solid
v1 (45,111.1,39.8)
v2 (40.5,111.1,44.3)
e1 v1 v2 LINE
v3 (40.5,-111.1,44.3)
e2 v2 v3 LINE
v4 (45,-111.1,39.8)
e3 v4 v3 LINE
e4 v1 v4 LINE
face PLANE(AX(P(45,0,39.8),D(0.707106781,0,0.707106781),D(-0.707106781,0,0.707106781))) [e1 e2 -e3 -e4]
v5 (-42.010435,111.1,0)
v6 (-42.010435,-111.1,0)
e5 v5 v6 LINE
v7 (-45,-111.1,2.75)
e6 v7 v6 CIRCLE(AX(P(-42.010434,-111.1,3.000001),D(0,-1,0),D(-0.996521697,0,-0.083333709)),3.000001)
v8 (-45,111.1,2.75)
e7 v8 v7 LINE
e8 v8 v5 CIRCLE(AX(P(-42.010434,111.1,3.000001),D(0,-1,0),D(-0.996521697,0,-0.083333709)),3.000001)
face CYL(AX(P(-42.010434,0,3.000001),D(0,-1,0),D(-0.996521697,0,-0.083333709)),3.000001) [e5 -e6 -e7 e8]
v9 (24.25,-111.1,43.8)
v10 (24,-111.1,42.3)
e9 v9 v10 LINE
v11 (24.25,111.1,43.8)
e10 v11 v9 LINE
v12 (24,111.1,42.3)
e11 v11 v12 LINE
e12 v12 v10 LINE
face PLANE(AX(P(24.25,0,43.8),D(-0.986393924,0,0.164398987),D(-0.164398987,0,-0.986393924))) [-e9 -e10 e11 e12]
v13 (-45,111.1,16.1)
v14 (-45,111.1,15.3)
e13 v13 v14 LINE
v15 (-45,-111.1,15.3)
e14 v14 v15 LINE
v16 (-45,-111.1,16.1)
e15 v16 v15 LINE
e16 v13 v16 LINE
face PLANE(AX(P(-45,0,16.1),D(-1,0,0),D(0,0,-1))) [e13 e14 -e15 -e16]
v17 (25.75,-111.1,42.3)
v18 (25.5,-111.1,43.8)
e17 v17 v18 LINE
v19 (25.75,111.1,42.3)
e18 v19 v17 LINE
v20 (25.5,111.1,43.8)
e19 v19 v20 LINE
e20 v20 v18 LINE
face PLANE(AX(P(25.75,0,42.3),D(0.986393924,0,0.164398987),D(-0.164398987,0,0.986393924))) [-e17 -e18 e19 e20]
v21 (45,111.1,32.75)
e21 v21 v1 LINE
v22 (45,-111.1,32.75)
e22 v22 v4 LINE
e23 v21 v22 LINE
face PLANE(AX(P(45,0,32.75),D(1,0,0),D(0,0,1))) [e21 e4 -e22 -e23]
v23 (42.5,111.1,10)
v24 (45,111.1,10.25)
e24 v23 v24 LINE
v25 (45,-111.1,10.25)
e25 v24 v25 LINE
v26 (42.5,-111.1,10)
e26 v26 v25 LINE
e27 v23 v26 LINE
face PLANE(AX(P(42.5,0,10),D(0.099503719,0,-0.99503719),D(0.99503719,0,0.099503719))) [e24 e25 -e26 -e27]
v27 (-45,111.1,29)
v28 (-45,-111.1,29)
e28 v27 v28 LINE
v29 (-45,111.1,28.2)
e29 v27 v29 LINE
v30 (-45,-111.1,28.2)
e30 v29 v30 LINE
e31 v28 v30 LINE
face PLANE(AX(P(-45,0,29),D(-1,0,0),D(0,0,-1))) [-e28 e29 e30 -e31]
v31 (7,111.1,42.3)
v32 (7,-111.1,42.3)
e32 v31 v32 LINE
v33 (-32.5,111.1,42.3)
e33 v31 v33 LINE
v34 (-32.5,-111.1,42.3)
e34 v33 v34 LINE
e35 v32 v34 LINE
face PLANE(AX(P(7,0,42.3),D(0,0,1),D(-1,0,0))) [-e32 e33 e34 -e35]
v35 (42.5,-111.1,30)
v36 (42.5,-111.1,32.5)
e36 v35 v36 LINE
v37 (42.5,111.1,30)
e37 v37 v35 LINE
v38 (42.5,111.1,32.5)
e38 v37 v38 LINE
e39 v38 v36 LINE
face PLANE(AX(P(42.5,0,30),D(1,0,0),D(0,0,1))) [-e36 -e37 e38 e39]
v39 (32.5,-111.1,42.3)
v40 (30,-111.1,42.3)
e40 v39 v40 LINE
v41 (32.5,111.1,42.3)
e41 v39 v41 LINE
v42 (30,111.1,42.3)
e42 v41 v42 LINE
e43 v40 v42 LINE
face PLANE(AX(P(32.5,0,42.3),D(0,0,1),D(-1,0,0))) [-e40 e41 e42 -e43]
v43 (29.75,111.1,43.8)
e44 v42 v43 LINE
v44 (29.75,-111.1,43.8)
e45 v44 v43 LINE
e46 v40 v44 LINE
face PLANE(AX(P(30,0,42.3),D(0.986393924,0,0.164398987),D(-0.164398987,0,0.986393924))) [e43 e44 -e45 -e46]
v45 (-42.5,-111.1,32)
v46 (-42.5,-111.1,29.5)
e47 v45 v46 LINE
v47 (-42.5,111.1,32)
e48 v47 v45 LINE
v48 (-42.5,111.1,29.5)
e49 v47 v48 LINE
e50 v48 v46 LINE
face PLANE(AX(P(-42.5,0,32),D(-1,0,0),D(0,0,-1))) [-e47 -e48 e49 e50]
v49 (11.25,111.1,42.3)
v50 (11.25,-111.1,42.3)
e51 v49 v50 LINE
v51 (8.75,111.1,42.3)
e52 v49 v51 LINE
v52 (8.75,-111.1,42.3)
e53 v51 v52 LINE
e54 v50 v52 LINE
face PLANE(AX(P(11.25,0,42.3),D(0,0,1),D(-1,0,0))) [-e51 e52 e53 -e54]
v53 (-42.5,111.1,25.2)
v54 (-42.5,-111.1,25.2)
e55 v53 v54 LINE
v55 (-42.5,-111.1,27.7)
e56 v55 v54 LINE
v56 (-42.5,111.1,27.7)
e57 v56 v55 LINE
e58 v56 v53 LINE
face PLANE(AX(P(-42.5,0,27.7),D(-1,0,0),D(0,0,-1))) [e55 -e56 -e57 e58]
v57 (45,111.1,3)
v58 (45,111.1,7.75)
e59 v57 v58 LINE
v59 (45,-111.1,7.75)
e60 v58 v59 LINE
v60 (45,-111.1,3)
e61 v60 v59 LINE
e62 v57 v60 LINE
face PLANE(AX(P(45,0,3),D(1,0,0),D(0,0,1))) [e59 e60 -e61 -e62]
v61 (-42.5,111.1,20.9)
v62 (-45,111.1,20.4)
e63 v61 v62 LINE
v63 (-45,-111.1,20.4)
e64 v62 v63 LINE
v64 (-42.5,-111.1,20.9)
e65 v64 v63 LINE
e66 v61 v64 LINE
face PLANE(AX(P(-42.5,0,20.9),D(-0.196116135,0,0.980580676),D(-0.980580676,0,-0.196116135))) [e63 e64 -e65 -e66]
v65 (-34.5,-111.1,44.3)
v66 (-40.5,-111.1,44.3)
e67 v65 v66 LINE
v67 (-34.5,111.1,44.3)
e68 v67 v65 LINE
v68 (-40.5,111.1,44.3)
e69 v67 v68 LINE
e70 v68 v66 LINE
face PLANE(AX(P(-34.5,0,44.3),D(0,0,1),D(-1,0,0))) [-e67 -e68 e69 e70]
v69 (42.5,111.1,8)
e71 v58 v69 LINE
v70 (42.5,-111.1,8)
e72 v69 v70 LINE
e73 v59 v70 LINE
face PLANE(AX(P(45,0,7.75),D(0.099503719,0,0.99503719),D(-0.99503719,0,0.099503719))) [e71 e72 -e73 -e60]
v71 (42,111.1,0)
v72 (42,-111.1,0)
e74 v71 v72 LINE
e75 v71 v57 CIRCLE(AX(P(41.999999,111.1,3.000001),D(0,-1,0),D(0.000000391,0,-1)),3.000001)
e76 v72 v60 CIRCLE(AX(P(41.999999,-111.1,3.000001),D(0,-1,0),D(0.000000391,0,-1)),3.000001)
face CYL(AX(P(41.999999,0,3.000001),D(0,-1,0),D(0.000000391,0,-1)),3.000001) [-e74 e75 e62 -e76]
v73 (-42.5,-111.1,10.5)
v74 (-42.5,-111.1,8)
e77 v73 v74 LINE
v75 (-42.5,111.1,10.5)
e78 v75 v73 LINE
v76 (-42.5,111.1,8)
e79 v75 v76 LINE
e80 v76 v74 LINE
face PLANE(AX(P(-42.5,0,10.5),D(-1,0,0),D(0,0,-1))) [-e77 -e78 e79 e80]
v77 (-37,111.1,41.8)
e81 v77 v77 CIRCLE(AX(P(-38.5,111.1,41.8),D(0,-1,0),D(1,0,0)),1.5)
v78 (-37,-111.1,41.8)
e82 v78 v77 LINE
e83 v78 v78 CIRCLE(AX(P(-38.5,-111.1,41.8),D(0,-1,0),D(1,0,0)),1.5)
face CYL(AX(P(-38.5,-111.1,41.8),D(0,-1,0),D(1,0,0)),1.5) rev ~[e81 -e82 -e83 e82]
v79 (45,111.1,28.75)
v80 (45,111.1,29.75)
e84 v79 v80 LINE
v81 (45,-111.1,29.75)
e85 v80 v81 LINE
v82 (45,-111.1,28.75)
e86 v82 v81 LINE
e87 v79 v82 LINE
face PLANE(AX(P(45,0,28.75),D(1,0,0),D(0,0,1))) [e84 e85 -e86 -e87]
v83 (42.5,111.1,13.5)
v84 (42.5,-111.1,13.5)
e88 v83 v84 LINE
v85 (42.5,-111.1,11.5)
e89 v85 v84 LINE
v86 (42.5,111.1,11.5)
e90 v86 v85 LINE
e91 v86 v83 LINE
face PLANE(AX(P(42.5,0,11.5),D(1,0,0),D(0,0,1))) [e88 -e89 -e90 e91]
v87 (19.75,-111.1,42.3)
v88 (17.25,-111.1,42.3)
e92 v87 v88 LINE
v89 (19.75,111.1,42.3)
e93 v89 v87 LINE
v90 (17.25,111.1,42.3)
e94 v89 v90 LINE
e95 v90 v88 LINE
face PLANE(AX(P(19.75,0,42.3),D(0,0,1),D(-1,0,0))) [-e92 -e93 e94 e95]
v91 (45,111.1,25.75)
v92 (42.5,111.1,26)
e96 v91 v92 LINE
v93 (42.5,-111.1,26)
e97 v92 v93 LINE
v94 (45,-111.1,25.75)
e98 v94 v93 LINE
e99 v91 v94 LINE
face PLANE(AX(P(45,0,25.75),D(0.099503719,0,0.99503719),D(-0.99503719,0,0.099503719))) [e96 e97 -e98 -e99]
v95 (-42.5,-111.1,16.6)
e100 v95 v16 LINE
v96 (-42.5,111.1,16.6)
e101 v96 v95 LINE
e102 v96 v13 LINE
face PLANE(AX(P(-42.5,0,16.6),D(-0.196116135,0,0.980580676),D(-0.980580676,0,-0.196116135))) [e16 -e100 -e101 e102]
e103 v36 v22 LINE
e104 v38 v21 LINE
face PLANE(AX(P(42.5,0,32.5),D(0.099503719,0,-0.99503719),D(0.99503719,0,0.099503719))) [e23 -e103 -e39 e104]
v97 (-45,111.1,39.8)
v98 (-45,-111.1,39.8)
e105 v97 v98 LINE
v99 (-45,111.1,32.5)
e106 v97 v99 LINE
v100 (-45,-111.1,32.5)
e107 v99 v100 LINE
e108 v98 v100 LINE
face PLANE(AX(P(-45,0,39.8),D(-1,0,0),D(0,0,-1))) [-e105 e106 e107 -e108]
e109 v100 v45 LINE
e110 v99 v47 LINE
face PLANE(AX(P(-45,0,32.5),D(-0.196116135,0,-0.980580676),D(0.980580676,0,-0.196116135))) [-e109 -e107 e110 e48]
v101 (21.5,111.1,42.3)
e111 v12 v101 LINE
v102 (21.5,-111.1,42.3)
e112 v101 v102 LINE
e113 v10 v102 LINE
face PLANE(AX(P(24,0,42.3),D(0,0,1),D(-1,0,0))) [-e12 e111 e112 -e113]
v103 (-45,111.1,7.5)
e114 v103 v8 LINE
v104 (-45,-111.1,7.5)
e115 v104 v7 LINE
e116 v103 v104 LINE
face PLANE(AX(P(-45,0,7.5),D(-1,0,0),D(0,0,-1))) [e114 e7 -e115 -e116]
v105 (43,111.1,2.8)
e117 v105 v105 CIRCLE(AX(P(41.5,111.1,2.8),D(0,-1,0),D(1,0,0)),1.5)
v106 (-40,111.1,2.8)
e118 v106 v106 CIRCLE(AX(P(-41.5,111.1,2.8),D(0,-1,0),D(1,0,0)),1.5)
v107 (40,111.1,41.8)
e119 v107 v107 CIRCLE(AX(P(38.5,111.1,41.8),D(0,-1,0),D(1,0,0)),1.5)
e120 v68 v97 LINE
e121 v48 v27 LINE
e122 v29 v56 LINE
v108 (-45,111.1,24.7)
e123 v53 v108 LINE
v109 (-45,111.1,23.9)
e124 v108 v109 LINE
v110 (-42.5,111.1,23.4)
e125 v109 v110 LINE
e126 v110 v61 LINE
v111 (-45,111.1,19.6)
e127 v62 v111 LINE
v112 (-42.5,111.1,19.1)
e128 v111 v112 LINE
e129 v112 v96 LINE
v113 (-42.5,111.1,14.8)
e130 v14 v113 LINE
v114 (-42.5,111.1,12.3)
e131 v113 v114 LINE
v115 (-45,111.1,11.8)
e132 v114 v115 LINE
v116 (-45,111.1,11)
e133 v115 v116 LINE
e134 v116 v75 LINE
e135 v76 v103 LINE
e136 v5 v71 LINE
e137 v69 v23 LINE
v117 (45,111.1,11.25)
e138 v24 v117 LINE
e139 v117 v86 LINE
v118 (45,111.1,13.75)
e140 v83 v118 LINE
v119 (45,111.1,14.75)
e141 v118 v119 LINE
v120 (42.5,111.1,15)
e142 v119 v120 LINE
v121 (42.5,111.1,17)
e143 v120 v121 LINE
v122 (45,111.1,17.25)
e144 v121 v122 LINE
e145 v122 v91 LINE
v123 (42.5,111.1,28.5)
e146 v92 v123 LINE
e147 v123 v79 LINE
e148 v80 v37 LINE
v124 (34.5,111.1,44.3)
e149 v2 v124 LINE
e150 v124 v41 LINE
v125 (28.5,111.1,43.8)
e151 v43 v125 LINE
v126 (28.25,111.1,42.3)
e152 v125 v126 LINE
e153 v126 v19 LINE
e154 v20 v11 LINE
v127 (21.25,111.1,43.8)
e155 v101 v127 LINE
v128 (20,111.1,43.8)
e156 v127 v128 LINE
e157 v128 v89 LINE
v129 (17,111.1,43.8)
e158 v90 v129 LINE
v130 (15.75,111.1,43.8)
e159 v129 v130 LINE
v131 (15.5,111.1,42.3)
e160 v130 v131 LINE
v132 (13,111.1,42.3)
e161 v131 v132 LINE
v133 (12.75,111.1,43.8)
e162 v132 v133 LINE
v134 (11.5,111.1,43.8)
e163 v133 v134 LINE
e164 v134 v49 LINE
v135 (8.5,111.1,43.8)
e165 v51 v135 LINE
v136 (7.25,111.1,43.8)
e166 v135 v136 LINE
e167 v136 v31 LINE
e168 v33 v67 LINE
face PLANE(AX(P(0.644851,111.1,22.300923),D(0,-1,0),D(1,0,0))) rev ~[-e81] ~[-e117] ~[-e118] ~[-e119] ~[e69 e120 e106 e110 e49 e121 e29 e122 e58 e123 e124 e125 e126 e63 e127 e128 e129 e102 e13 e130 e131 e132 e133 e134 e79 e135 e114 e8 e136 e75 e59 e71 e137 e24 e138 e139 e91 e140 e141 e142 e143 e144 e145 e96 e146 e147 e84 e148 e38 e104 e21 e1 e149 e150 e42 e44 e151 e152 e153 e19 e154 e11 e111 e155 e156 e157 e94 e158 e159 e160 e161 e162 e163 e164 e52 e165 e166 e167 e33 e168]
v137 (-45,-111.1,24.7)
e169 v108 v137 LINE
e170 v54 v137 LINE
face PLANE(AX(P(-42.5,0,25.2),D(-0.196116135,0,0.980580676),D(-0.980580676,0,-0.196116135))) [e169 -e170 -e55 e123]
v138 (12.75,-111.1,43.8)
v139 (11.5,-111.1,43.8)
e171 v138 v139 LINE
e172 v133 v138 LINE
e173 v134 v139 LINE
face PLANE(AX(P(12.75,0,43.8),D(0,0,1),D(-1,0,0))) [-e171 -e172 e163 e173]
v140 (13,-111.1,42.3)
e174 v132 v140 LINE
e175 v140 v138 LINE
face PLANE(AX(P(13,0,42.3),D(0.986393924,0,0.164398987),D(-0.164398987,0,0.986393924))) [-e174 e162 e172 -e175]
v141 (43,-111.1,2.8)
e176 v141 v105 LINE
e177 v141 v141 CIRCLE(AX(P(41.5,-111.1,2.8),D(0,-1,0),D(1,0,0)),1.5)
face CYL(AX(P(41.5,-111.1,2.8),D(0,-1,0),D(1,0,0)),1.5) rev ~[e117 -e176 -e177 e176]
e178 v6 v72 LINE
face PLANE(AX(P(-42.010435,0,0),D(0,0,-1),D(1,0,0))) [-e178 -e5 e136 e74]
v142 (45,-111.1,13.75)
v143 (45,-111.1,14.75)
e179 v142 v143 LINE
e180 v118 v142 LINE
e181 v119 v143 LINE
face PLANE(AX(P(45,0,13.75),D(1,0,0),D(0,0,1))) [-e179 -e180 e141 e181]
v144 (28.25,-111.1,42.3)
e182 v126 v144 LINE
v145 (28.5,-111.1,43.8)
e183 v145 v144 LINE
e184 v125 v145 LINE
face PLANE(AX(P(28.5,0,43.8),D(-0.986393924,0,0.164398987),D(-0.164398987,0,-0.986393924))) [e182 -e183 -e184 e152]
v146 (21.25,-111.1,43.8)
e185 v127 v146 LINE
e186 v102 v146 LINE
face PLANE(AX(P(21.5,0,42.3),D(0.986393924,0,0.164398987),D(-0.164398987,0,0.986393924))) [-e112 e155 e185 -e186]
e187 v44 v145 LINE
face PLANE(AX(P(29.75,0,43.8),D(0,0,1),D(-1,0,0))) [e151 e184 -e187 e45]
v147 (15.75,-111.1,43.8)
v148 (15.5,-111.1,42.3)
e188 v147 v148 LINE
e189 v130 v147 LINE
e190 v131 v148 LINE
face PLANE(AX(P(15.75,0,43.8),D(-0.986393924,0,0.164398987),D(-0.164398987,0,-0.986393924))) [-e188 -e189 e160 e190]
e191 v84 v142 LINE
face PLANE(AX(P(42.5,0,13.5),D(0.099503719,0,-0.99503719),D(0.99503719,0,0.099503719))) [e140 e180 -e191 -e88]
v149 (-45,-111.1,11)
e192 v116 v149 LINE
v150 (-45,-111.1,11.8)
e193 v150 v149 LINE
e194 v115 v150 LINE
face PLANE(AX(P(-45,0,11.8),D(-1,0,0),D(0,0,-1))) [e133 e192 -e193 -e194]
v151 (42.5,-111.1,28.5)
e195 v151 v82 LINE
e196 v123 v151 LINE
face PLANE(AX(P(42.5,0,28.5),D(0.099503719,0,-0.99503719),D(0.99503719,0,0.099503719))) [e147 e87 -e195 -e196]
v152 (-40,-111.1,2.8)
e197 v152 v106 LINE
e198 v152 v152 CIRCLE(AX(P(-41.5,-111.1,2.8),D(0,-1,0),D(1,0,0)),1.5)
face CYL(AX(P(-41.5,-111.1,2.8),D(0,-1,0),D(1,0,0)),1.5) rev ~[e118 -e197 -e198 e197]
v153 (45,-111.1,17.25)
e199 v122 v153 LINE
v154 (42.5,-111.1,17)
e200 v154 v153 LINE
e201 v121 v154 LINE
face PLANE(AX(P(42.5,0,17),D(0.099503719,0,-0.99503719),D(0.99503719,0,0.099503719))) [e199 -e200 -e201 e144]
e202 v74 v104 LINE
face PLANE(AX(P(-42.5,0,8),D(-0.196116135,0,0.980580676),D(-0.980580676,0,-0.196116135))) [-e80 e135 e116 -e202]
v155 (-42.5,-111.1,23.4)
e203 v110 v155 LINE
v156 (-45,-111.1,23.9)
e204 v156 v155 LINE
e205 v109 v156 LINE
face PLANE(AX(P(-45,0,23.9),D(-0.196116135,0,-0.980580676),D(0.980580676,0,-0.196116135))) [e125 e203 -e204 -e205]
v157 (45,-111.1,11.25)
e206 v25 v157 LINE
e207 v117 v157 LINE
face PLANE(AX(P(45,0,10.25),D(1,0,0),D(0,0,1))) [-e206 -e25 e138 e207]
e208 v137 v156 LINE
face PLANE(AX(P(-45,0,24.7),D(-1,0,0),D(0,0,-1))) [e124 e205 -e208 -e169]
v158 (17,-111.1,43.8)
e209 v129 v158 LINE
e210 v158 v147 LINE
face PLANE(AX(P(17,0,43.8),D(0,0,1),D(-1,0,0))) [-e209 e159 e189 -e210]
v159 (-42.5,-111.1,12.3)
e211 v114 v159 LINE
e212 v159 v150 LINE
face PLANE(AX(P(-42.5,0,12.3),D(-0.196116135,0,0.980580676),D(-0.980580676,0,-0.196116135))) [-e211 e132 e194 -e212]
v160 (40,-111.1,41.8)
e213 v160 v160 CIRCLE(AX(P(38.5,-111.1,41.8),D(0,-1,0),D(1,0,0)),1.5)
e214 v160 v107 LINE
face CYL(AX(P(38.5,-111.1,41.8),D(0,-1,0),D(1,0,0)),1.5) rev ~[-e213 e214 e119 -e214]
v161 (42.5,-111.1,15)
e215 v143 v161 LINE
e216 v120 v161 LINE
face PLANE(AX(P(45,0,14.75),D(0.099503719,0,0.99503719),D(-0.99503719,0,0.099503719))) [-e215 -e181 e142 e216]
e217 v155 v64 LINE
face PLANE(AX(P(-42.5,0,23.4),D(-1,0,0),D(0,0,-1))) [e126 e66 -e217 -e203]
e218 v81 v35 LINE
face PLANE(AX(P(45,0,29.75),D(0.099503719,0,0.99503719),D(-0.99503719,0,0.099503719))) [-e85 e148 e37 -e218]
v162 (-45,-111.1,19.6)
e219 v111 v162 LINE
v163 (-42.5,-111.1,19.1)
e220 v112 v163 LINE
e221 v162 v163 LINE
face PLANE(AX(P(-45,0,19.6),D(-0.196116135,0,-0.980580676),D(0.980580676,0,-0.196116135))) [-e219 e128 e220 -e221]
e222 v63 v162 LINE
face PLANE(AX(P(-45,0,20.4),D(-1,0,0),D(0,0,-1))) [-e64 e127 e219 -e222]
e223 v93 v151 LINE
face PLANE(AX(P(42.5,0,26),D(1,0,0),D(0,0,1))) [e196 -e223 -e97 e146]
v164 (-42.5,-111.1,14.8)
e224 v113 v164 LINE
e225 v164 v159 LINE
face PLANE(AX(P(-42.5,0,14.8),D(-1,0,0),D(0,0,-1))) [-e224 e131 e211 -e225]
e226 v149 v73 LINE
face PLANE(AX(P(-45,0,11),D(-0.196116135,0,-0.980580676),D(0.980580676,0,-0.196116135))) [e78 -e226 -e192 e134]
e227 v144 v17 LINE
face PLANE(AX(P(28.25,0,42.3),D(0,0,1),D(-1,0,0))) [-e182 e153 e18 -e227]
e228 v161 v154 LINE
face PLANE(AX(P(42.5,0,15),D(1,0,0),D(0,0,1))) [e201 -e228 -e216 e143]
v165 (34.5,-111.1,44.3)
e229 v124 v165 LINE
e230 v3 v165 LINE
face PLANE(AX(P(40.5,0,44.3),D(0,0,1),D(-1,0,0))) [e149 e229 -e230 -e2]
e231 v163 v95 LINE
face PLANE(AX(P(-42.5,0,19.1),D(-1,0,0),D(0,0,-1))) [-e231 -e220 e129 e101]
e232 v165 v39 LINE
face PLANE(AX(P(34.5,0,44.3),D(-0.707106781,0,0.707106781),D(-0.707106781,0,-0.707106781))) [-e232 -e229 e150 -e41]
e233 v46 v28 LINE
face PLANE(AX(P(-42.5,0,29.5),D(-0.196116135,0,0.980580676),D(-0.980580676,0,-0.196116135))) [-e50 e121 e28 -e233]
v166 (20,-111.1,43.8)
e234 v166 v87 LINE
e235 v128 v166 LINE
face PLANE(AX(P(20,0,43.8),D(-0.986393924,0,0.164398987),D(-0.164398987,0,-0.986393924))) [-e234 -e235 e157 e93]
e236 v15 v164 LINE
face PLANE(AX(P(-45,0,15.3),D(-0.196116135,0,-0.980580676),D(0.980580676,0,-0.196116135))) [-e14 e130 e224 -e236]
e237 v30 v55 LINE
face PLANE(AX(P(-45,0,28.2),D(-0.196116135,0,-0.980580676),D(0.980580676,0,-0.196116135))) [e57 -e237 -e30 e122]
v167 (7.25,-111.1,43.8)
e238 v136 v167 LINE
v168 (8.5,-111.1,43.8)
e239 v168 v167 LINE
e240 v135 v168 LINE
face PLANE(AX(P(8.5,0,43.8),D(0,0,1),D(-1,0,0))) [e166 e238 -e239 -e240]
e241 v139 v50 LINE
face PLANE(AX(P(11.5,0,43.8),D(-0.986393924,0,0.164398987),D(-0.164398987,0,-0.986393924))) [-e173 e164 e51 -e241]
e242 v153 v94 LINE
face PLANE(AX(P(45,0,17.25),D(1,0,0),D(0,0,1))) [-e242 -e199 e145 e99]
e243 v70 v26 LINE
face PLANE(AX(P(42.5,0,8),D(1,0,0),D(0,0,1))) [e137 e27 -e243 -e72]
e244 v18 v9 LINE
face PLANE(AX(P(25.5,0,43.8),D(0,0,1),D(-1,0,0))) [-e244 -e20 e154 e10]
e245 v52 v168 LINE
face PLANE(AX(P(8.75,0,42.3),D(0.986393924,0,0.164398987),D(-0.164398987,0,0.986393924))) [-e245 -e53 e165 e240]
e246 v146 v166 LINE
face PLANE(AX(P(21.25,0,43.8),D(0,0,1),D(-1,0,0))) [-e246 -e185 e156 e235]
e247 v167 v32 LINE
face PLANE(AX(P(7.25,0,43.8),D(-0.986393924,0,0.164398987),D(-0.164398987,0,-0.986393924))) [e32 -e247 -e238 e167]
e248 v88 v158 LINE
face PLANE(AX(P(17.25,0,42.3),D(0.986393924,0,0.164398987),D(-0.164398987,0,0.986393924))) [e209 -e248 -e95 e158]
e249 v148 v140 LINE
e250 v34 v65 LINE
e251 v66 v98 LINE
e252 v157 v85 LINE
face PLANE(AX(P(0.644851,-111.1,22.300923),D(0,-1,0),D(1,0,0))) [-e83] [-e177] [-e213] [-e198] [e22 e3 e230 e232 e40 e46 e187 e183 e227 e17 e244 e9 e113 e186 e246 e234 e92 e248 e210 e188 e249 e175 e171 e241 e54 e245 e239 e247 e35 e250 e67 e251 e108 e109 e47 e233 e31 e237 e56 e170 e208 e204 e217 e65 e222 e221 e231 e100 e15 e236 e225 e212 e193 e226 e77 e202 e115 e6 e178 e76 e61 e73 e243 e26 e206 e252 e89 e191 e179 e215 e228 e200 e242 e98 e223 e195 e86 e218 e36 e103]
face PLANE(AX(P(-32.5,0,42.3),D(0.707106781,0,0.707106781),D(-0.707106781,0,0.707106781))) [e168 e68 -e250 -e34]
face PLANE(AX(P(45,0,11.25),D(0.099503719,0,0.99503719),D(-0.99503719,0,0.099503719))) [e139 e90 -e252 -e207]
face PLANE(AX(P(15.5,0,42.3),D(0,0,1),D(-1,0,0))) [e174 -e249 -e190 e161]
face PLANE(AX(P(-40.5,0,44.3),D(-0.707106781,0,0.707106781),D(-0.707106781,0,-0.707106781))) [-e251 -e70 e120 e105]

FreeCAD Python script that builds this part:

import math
import FreeCAD as App
import Part
import Sketcher
Q = App.Units.Quantity

doc = App.newDocument("Part")
body = doc.addObject("PartDesign::Body", "Body")

sketch1 = doc.addObject("Sketcher::SketchObject", "Sketch")
body.addObject(sketch1)
sketch1.AttachmentSupport = (doc.XZ_Plane, [""])
sketch1.MapMode = "FlatFace"
sketch1.addGeometry(Part.LineSegment(App.Vector(29.8, 43.8, 0), App.Vector(28.5, 43.8, 0)), False)
sketch1.addGeometry(Part.LineSegment(App.Vector(28.5, 43.8, 0), App.Vector(28.2, 42.3, 0)), False)
sketch1.addGeometry(Part.LineSegment(App.Vector(28.2, 42.3, 0), App.Vector(25.8, 42.3, 0)), False)
sketch1.addGeometry(Part.LineSegment(App.Vector(25.8, 42.3, 0), App.Vector(25.5, 43.8, 0)), False)
sketch1.addGeometry(Part.LineSegment(App.Vector(25.5, 43.8, 0), App.Vector(24.2, 43.8, 0)), False)
sketch1.addGeometry(Part.LineSegment(App.Vector(24.2, 43.8, 0), App.Vector(24, 42.3, 0)), False)
sketch1.addGeometry(Part.LineSegment(App.Vector(24, 42.3, 0), App.Vector(21.5, 42.3, 0)), False)
sketch1.addGeometry(Part.LineSegment(App.Vector(21.5, 42.3, 0), App.Vector(21.2, 43.8, 0)), False)
sketch1.addGeometry(Part.LineSegment(App.Vector(21.2, 43.8, 0), App.Vector(20, 43.8, 0)), False)
sketch1.addGeometry(Part.LineSegment(App.Vector(20, 43.8, 0), App.Vector(19.8, 42.3, 0)), False)
sketch1.addGeometry(Part.LineSegment(App.Vector(19.8, 42.3, 0), App.Vector(17.2, 42.3, 0)), False)
sketch1.addGeometry(Part.LineSegment(App.Vector(17.2, 42.3, 0), App.Vector(17, 43.8, 0)), False)
sketch1.addGeometry(Part.LineSegment(App.Vector(17, 43.8, 0), App.Vector(15.8, 43.8, 0)), False)
sketch1.addGeometry(Part.LineSegment(App.Vector(15.8, 43.8, 0), App.Vector(15.5, 42.3, 0)), False)
sketch1.addGeometry(Part.LineSegment(App.Vector(15.5, 42.3, 0), App.Vector(13, 42.3, 0)), False)
sketch1.addGeometry(Part.LineSegment(App.Vector(13, 42.3, 0), App.Vector(12.8, 43.8, 0)), False)
sketch1.addGeometry(Part.LineSegment(App.Vector(12.8, 43.8, 0), App.Vector(11.5, 43.8, 0)), False)
sketch1.addGeometry(Part.LineSegment(App.Vector(11.5, 43.8, 0), App.Vector(11.2, 42.3, 0)), False)
sketch1.addGeometry(Part.LineSegment(App.Vector(11.2, 42.3, 0), App.Vector(8.8, 42.3, 0)), False)
sketch1.addGeometry(Part.LineSegment(App.Vector(8.8, 42.3, 0), App.Vector(8.5, 43.8, 0)), False)
sketch1.addGeometry(Part.LineSegment(App.Vector(8.5, 43.8, 0), App.Vector(7.2, 43.8, 0)), False)
sketch1.addGeometry(Part.LineSegment(App.Vector(7.2, 43.8, 0), App.Vector(7, 42.3, 0)), False)
sketch1.addGeometry(Part.LineSegment(App.Vector(7, 42.3, 0), App.Vector(-32.5, 42.3, 0)), False)
sketch1.addGeometry(Part.LineSegment(App.Vector(-32.5, 42.3, 0), App.Vector(-34.5, 44.3, 0)), False)
sketch1.addGeometry(Part.LineSegment(App.Vector(-34.5, 44.3, 0), App.Vector(-40.5, 44.3, 0)), False)
sketch1.addGeometry(Part.LineSegment(App.Vector(-40.5, 44.3, 0), App.Vector(-45, 39.8, 0)), False)
sketch1.addGeometry(Part.LineSegment(App.Vector(-45, 39.8, 0), App.Vector(-45, 32.5, 0)), False)
sketch1.addGeometry(Part.LineSegment(App.Vector(-45, 32.5, 0), App.Vector(-42.5, 32, 0)), False)
sketch1.addGeometry(Part.LineSegment(App.Vector(-42.5, 32, 0), App.Vector(-42.5, 29.5, 0)), False)
sketch1.addGeometry(Part.LineSegment(App.Vector(-42.5, 29.5, 0), App.Vector(-45, 29, 0)), False)
sketch1.addGeometry(Part.LineSegment(App.Vector(-45, 29, 0), App.Vector(-45, 28.2, 0)), False)
sketch1.addGeometry(Part.LineSegment(App.Vector(-45, 28.2, 0), App.Vector(-42.5, 27.7, 0)), False)
sketch1.addGeometry(Part.LineSegment(App.Vector(-42.5, 27.7, 0), App.Vector(-42.5, 25.2, 0)), False)
sketch1.addGeometry(Part.LineSegment(App.Vector(-42.5, 25.2, 0), App.Vector(-45, 24.7, 0)), False)
sketch1.addGeometry(Part.LineSegment(App.Vector(-45, 24.7, 0), App.Vector(-45, 23.9, 0)), False)
sketch1.addGeometry(Part.LineSegment(App.Vector(-45, 23.9, 0), App.Vector(-42.5, 23.4, 0)), False)
sketch1.addGeometry(Part.LineSegment(App.Vector(-42.5, 23.4, 0), App.Vector(-42.5, 20.9, 0)), False)
sketch1.addGeometry(Part.LineSegment(App.Vector(-42.5, 20.9, 0), App.Vector(-45, 20.4, 0)), False)
sketch1.addGeometry(Part.LineSegment(App.Vector(-45, 20.4, 0), App.Vector(-45, 19.6, 0)), False)
sketch1.addGeometry(Part.LineSegment(App.Vector(-45, 19.6, 0), App.Vector(-42.5, 19.1, 0)), False)
sketch1.addGeometry(Part.LineSegment(App.Vector(-42.5, 19.1, 0), App.Vector(-42.5, 16.6, 0)), False)
sketch1.addGeometry(Part.LineSegment(App.Vector(-42.5, 16.6, 0), App.Vector(-45, 16.1, 0)), False)
sketch1.addGeometry(Part.LineSegment(App.Vector(-45, 16.1, 0), App.Vector(-45, 15.3, 0)), False)
sketch1.addGeometry(Part.LineSegment(App.Vector(-45, 15.3, 0), App.Vector(-42.5, 14.8, 0)), False)
sketch1.addGeometry(Part.LineSegment(App.Vector(-42.5, 14.8, 0), App.Vector(-42.5, 12.3, 0)), False)
sketch1.addGeometry(Part.LineSegment(App.Vector(-42.5, 12.3, 0), App.Vector(-45, 11.8, 0)), False)
sketch1.addGeometry(Part.LineSegment(App.Vector(-45, 11.8, 0), App.Vector(-45, 11, 0)), False)
sketch1.addGeometry(Part.LineSegment(App.Vector(-45, 11, 0), App.Vector(-42.5, 10.5, 0)), False)
sketch1.addGeometry(Part.LineSegment(App.Vector(-42.5, 10.5, 0), App.Vector(-42.5, 8, 0)), False)
sketch1.addGeometry(Part.LineSegment(App.Vector(-42.5, 8, 0), App.Vector(-45, 7.5, 0)), False)
sketch1.addGeometry(Part.LineSegment(App.Vector(-45, 7.5, 0), App.Vector(-45, 2.8, 0)), False)
sketch1.addGeometry(Part.ArcOfCircle(Part.Circle(App.Vector(-42, 3, 0), App.Vector(0, 0, 1), 3), math.radians(-175), math.radians(-90)), False)
sketch1.addGeometry(Part.LineSegment(App.Vector(-42, 0, 0), App.Vector(42, 0, 0)), False)
sketch1.addGeometry(Part.ArcOfCircle(Part.Circle(App.Vector(42, 3, 0), App.Vector(0, 0, 1), 3), math.radians(-90), math.radians(0)), False)
sketch1.addGeometry(Part.LineSegment(App.Vector(45, 3, 0), App.Vector(45, 7.8, 0)), False)
sketch1.addGeometry(Part.LineSegment(App.Vector(45, 7.8, 0), App.Vector(42.5, 8, 0)), False)
sketch1.addGeometry(Part.LineSegment(App.Vector(42.5, 8, 0), App.Vector(42.5, 10, 0)), False)
sketch1.addGeometry(Part.LineSegment(App.Vector(42.5, 10, 0), App.Vector(45, 10.2, 0)), False)
sketch1.addGeometry(Part.LineSegment(App.Vector(45, 10.2, 0), App.Vector(45, 11.2, 0)), False)
sketch1.addGeometry(Part.LineSegment(App.Vector(45, 11.2, 0), App.Vector(42.5, 11.5, 0)), False)
sketch1.addGeometry(Part.LineSegment(App.Vector(42.5, 11.5, 0), App.Vector(42.5, 13.5, 0)), False)
sketch1.addGeometry(Part.LineSegment(App.Vector(42.5, 13.5, 0), App.Vector(45, 13.8, 0)), False)
sketch1.addGeometry(Part.LineSegment(App.Vector(45, 13.8, 0), App.Vector(45, 14.8, 0)), False)
sketch1.addGeometry(Part.LineSegment(App.Vector(45, 14.8, 0), App.Vector(42.5, 15, 0)), False)
sketch1.addGeometry(Part.LineSegment(App.Vector(42.5, 15, 0), App.Vector(42.5, 17, 0)), False)
sketch1.addGeometry(Part.LineSegment(App.Vector(42.5, 17, 0), App.Vector(45, 17.2, 0)), False)
sketch1.addGeometry(Part.LineSegment(App.Vector(45, 17.2, 0), App.Vector(45, 25.8, 0)), False)
sketch1.addGeometry(Part.LineSegment(App.Vector(45, 25.8, 0), App.Vector(42.5, 26, 0)), False)
sketch1.addGeometry(Part.LineSegment(App.Vector(42.5, 26, 0), App.Vector(42.5, 28.5, 0)), False)
sketch1.addGeometry(Part.LineSegment(App.Vector(42.5, 28.5, 0), App.Vector(45, 28.8, 0)), False)
sketch1.addGeometry(Part.LineSegment(App.Vector(45, 28.8, 0), App.Vector(45, 29.8, 0)), False)
sketch1.addGeometry(Part.LineSegment(App.Vector(45, 29.8, 0), App.Vector(42.5, 30, 0)), False)
sketch1.addGeometry(Part.LineSegment(App.Vector(42.5, 30, 0), App.Vector(42.5, 32.5, 0)), False)
sketch1.addGeometry(Part.LineSegment(App.Vector(42.5, 32.5, 0), App.Vector(45, 32.8, 0)), False)
sketch1.addGeometry(Part.LineSegment(App.Vector(45, 32.8, 0), App.Vector(45, 39.8, 0)), False)
sketch1.addGeometry(Part.LineSegment(App.Vector(45, 39.8, 0), App.Vector(40.5, 44.3, 0)), False)
sketch1.addGeometry(Part.LineSegment(App.Vector(40.5, 44.3, 0), App.Vector(34.5, 44.3, 0)), False)
sketch1.addGeometry(Part.LineSegment(App.Vector(34.5, 44.3, 0), App.Vector(32.5, 42.3, 0)), False)
sketch1.addGeometry(Part.LineSegment(App.Vector(32.5, 42.3, 0), App.Vector(30, 42.3, 0)), False)
sketch1.addGeometry(Part.LineSegment(App.Vector(30, 42.3, 0), App.Vector(29.8, 43.8, 0)), False)
sketch1.addConstraint(Sketcher.Constraint("Coincident", 0, 2, 1, 1))
sketch1.addConstraint(Sketcher.Constraint("Coincident", 1, 2, 2, 1))
sketch1.addConstraint(Sketcher.Constraint("Coincident", 2, 2, 3, 1))
sketch1.addConstraint(Sketcher.Constraint("Coincident", 3, 2, 4, 1))
sketch1.addConstraint(Sketcher.Constraint("Coincident", 4, 2, 5, 1))
sketch1.addConstraint(Sketcher.Constraint("Coincident", 5, 2, 6, 1))
sketch1.addConstraint(Sketcher.Constraint("Coincident", 6, 2, 7, 1))
sketch1.addConstraint(Sketcher.Constraint("Coincident", 7, 2, 8, 1))
sketch1.addConstraint(Sketcher.Constraint("Coincident", 8, 2, 9, 1))
sketch1.addConstraint(Sketcher.Constraint("Coincident", 9, 2, 10, 1))
sketch1.addConstraint(Sketcher.Constraint("Coincident", 10, 2, 11, 1))
sketch1.addConstraint(Sketcher.Constraint("Coincident", 11, 2, 12, 1))
sketch1.addConstraint(Sketcher.Constraint("Coincident", 12, 2, 13, 1))
sketch1.addConstraint(Sketcher.Constraint("Coincident", 13, 2, 14, 1))
sketch1.addConstraint(Sketcher.Constraint("Coincident", 14, 2, 15, 1))
sketch1.addConstraint(Sketcher.Constraint("Coincident", 15, 2, 16, 1))
sketch1.addConstraint(Sketcher.Constraint("Coincident", 16, 2, 17, 1))
sketch1.addConstraint(Sketcher.Constraint("Coincident", 17, 2, 18, 1))
sketch1.addConstraint(Sketcher.Constraint("Coincident", 18, 2, 19, 1))
sketch1.addConstraint(Sketcher.Constraint("Coincident", 19, 2, 20, 1))
sketch1.addConstraint(Sketcher.Constraint("Coincident", 20, 2, 21, 1))
sketch1.addConstraint(Sketcher.Constraint("Coincident", 21, 2, 22, 1))
sketch1.addConstraint(Sketcher.Constraint("Coincident", 22, 2, 23, 1))
sketch1.addConstraint(Sketcher.Constraint("Coincident", 23, 2, 24, 1))
sketch1.addConstraint(Sketcher.Constraint("Coincident", 24, 2, 25, 1))
sketch1.addConstraint(Sketcher.Constraint("Coincident", 25, 2, 26, 1))
sketch1.addConstraint(Sketcher.Constraint("Coincident", 26, 2, 27, 1))
sketch1.addConstraint(Sketcher.Constraint("Coincident", 27, 2, 28, 1))
sketch1.addConstraint(Sketcher.Constraint("Coincident", 28, 2, 29, 1))
sketch1.addConstraint(Sketcher.Constraint("Coincident", 29, 2, 30, 1))
sketch1.addConstraint(Sketcher.Constraint("Coincident", 30, 2, 31, 1))
sketch1.addConstraint(Sketcher.Constraint("Coincident", 31, 2, 32, 1))
sketch1.addConstraint(Sketcher.Constraint("Coincident", 32, 2, 33, 1))
sketch1.addConstraint(Sketcher.Constraint("Coincident", 33, 2, 34, 1))
sketch1.addConstraint(Sketcher.Constraint("Coincident", 34, 2, 35, 1))
sketch1.addConstraint(Sketcher.Constraint("Coincident", 35, 2, 36, 1))
sketch1.addConstraint(Sketcher.Constraint("Coincident", 36, 2, 37, 1))
sketch1.addConstraint(Sketcher.Constraint("Coincident", 37, 2, 38, 1))
sketch1.addConstraint(Sketcher.Constraint("Coincident", 38, 2, 39, 1))
sketch1.addConstraint(Sketcher.Constraint("Coincident", 39, 2, 40, 1))
sketch1.addConstraint(Sketcher.Constraint("Coincident", 40, 2, 41, 1))
sketch1.addConstraint(Sketcher.Constraint("Coincident", 41, 2, 42, 1))
sketch1.addConstraint(Sketcher.Constraint("Coincident", 42, 2, 43, 1))
sketch1.addConstraint(Sketcher.Constraint("Coincident", 43, 2, 44, 1))
sketch1.addConstraint(Sketcher.Constraint("Coincident", 44, 2, 45, 1))
sketch1.addConstraint(Sketcher.Constraint("Coincident", 45, 2, 46, 1))
sketch1.addConstraint(Sketcher.Constraint("Coincident", 46, 2, 47, 1))
sketch1.addConstraint(Sketcher.Constraint("Coincident", 47, 2, 48, 1))
sketch1.addConstraint(Sketcher.Constraint("Coincident", 48, 2, 49, 1))
sketch1.addConstraint(Sketcher.Constraint("Coincident", 49, 2, 50, 1))
sketch1.addConstraint(Sketcher.Constraint("Coincident", 50, 2, 51, 1))
sketch1.addConstraint(Sketcher.Constraint("Tangent", 51, 2, 52, 1))
sketch1.addConstraint(Sketcher.Constraint("Tangent", 52, 2, 53, 1))
sketch1.addConstraint(Sketcher.Constraint("Tangent", 53, 2, 54, 1))
sketch1.addConstraint(Sketcher.Constraint("Coincident", 54, 2, 55, 1))
sketch1.addConstraint(Sketcher.Constraint("Coincident", 55, 2, 56, 1))
sketch1.addConstraint(Sketcher.Constraint("Coincident", 56, 2, 57, 1))
sketch1.addConstraint(Sketcher.Constraint("Coincident", 57, 2, 58, 1))
sketch1.addConstraint(Sketcher.Constraint("Coincident", 58, 2, 59, 1))
sketch1.addConstraint(Sketcher.Constraint("Coincident", 59, 2, 60, 1))
sketch1.addConstraint(Sketcher.Constraint("Coincident", 60, 2, 61, 1))
sketch1.addConstraint(Sketcher.Constraint("Coincident", 61, 2, 62, 1))
sketch1.addConstraint(Sketcher.Constraint("Coincident", 62, 2, 63, 1))
sketch1.addConstraint(Sketcher.Constraint("Coincident", 63, 2, 64, 1))
sketch1.addConstraint(Sketcher.Constraint("Coincident", 64, 2, 65, 1))
sketch1.addConstraint(Sketcher.Constraint("Coincident", 65, 2, 66, 1))
sketch1.addConstraint(Sketcher.Constraint("Coincident", 66, 2, 67, 1))
sketch1.addConstraint(Sketcher.Constraint("Coincident", 67, 2, 68, 1))
sketch1.addConstraint(Sketcher.Constraint("Coincident", 68, 2, 69, 1))
sketch1.addConstraint(Sketcher.Constraint("Coincident", 69, 2, 70, 1))
sketch1.addConstraint(Sketcher.Constraint("Coincident", 70, 2, 71, 1))
sketch1.addConstraint(Sketcher.Constraint("Coincident", 71, 2, 72, 1))
sketch1.addConstraint(Sketcher.Constraint("Coincident", 72, 2, 73, 1))
sketch1.addConstraint(Sketcher.Constraint("Coincident", 73, 2, 74, 1))
sketch1.addConstraint(Sketcher.Constraint("Coincident", 74, 2, 75, 1))
sketch1.addConstraint(Sketcher.Constraint("Coincident", 75, 2, 76, 1))
sketch1.addConstraint(Sketcher.Constraint("Coincident", 76, 2, 77, 1))
sketch1.addConstraint(Sketcher.Constraint("Coincident", 77, 2, 78, 1))
sketch1.addConstraint(Sketcher.Constraint("Coincident", 78, 2, 79, 1))
sketch1.addConstraint(Sketcher.Constraint("Coincident", 79, 2, 0, 1))
sketch1.addConstraint(Sketcher.Constraint("Horizontal", 0))
sketch1.addConstraint(Sketcher.Constraint("Horizontal", 2))
sketch1.addConstraint(Sketcher.Constraint("Horizontal", 4))
sketch1.addConstraint(Sketcher.Constraint("Horizontal", 6))
sketch1.addConstraint(Sketcher.Constraint("Horizontal", 8))
sketch1.addConstraint(Sketcher.Constraint("Horizontal", 10))
sketch1.addConstraint(Sketcher.Constraint("Horizontal", 12))
sketch1.addConstraint(Sketcher.Constraint("Horizontal", 14))
sketch1.addConstraint(Sketcher.Constraint("Horizontal", 16))
sketch1.addConstraint(Sketcher.Constraint("Horizontal", 18))
sketch1.addConstraint(Sketcher.Constraint("Horizontal", 20))
sketch1.addConstraint(Sketcher.Constraint("Horizontal", 22))
sketch1.addConstraint(Sketcher.Constraint("Horizontal", 24))
sketch1.addConstraint(Sketcher.Constraint("Vertical", 26))
sketch1.addConstraint(Sketcher.Constraint("Vertical", 28))
sketch1.addConstraint(Sketcher.Constraint("Vertical", 30))
sketch1.addConstraint(Sketcher.Constraint("Vertical", 32))
sketch1.addConstraint(Sketcher.Constraint("Vertical", 34))
sketch1.addConstraint(Sketcher.Constraint("Vertical", 36))
sketch1.addConstraint(Sketcher.Constraint("Vertical", 38))
sketch1.addConstraint(Sketcher.Constraint("Vertical", 40))
sketch1.addConstraint(Sketcher.Constraint("Vertical", 42))
sketch1.addConstraint(Sketcher.Constraint("Vertical", 44))
sketch1.addConstraint(Sketcher.Constraint("Vertical", 46))
sketch1.addConstraint(Sketcher.Constraint("Vertical", 48))
sketch1.addConstraint(Sketcher.Constraint("Vertical", 50))
sketch1.addConstraint(Sketcher.Constraint("Horizontal", 52))
sketch1.addConstraint(Sketcher.Constraint("Vertical", 54))
sketch1.addConstraint(Sketcher.Constraint("Vertical", 56))
sketch1.addConstraint(Sketcher.Constraint("Vertical", 58))
sketch1.addConstraint(Sketcher.Constraint("Vertical", 60))
sketch1.addConstraint(Sketcher.Constraint("Vertical", 62))
sketch1.addConstraint(Sketcher.Constraint("Vertical", 64))
sketch1.addConstraint(Sketcher.Constraint("Vertical", 66))
sketch1.addConstraint(Sketcher.Constraint("Vertical", 68))
sketch1.addConstraint(Sketcher.Constraint("Vertical", 70))
sketch1.addConstraint(Sketcher.Constraint("Vertical", 72))
sketch1.addConstraint(Sketcher.Constraint("Vertical", 74))
sketch1.addConstraint(Sketcher.Constraint("Horizontal", 76))
sketch1.addConstraint(Sketcher.Constraint("Horizontal", 78))
sketch1.addConstraint(Sketcher.Constraint("Equal", 51, 53))
sketch1.addConstraint(Sketcher.Constraint("Symmetric", 48, 2, 55, 2, -2))
sketch1.addConstraint(Sketcher.Constraint("Symmetric", 25, 2, 74, 2, -2))
sketch1.addConstraint(Sketcher.Constraint("Symmetric", 24, 2, 75, 2, -2))
sketch1.addConstraint(Sketcher.Constraint("Symmetric", 22, 2, 77, 2, -2))
sketch1.addConstraint(Sketcher.Constraint("PointOnObject", 51, 2, -1))
sketch1.addConstraint(Sketcher.Constraint("Parallel", 1, 5))
sketch1.addConstraint(Sketcher.Constraint("Parallel", 3, 7))
sketch1.addConstraint(Sketcher.Constraint("Parallel", 5, 9))
sketch1.addConstraint(Sketcher.Constraint("Parallel", 7, 11))
sketch1.addConstraint(Sketcher.Constraint("Parallel", 9, 13))
sketch1.addConstraint(Sketcher.Constraint("Parallel", 11, 15))
sketch1.addConstraint(Sketcher.Constraint("Parallel", 13, 17))
sketch1.addConstraint(Sketcher.Constraint("Parallel", 15, 19))
sketch1.addConstraint(Sketcher.Constraint("Parallel", 17, 21))
sketch1.addConstraint(Sketcher.Constraint("Perpendicular", 23, 25))
sketch1.addConstraint(Sketcher.Constraint("Parallel", 27, 31))
sketch1.addConstraint(Sketcher.Constraint("Parallel", 29, 33))
sketch1.addConstraint(Sketcher.Constraint("Parallel", 31, 35))
sketch1.addConstraint(Sketcher.Constraint("Parallel", 33, 37))
sketch1.addConstraint(Sketcher.Constraint("Parallel", 35, 39))
sketch1.addConstraint(Sketcher.Constraint("Parallel", 37, 41))
sketch1.addConstraint(Sketcher.Constraint("Parallel", 39, 43))
sketch1.addConstraint(Sketcher.Constraint("Parallel", 41, 45))
sketch1.addConstraint(Sketcher.Constraint("Parallel", 43, 47))
sketch1.addConstraint(Sketcher.Constraint("Parallel", 45, 49))
sketch1.addConstraint(Sketcher.Constraint("Parallel", 55, 59))
sketch1.addConstraint(Sketcher.Constraint("Parallel", 57, 61))
sketch1.addConstraint(Sketcher.Constraint("Parallel", 59, 63))
sketch1.addConstraint(Sketcher.Constraint("Parallel", 61, 65))
sketch1.addConstraint(Sketcher.Constraint("Parallel", 63, 67))
sketch1.addConstraint(Sketcher.Constraint("Parallel", 65, 69))
sketch1.addConstraint(Sketcher.Constraint("Parallel", 67, 71))
sketch1.addConstraint(Sketcher.Constraint("Parallel", 69, 73))
sketch1.addConstraint(Sketcher.Constraint("Perpendicular", 25, 75))
sketch1.addConstraint(Sketcher.Constraint("Perpendicular", 75, 77))
sketch1.addConstraint(Sketcher.Constraint("Parallel", 19, 79))
sketch1.addConstraint(Sketcher.Constraint("Horizontal", 0, 2, 3, 2))
sketch1.addConstraint(Sketcher.Constraint("Horizontal", 2, 2, 5, 2))
sketch1.addConstraint(Sketcher.Constraint("Horizontal", 4, 2, 7, 2))
sketch1.addConstraint(Sketcher.Constraint("Horizontal", 6, 2, 9, 2))
sketch1.addConstraint(Sketcher.Constraint("Horizontal", 8, 2, 11, 2))
sketch1.addConstraint(Sketcher.Constraint("Horizontal", 10, 2, 13, 2))
sketch1.addConstraint(Sketcher.Constraint("Horizontal", 12, 2, 15, 2))
sketch1.addConstraint(Sketcher.Constraint("Horizontal", 14, 2, 17, 2))
sketch1.addConstraint(Sketcher.Constraint("Horizontal", 16, 2, 19, 2))
sketch1.addConstraint(Sketcher.Constraint("Horizontal", 18, 2, 21, 2))
sketch1.addConstraint(Sketcher.Constraint("Horizontal", 26, 2, 72, 2))
sketch1.addConstraint(Sketcher.Constraint("Vertical", 26, 2, 29, 2))
sketch1.addConstraint(Sketcher.Constraint("Vertical", 28, 2, 31, 2))
sketch1.addConstraint(Sketcher.Constraint("Vertical", 30, 2, 33, 2))
sketch1.addConstraint(Sketcher.Constraint("Vertical", 32, 2, 35, 2))
sketch1.addConstraint(Sketcher.Constraint("Vertical", 34, 2, 37, 2))
sketch1.addConstraint(Sketcher.Constraint("Vertical", 36, 2, 39, 2))
sketch1.addConstraint(Sketcher.Constraint("Vertical", 38, 2, 41, 2))
sketch1.addConstraint(Sketcher.Constraint("Vertical", 40, 2, 43, 2))
sketch1.addConstraint(Sketcher.Constraint("Vertical", 42, 2, 45, 2))
sketch1.addConstraint(Sketcher.Constraint("Vertical", 44, 2, 47, 2))
sketch1.addConstraint(Sketcher.Constraint("Vertical", 46, 2, 49, 2))
sketch1.addConstraint(Sketcher.Constraint("Vertical", 54, 2, 57, 2))
sketch1.addConstraint(Sketcher.Constraint("Vertical", 56, 2, 59, 2))
sketch1.addConstraint(Sketcher.Constraint("Vertical", 58, 2, 61, 2))
sketch1.addConstraint(Sketcher.Constraint("Vertical", 60, 2, 63, 2))
sketch1.addConstraint(Sketcher.Constraint("Vertical", 62, 2, 65, 2))
sketch1.addConstraint(Sketcher.Constraint("Vertical", 64, 2, 67, 2))
sketch1.addConstraint(Sketcher.Constraint("Vertical", 66, 2, 69, 2))
sketch1.addConstraint(Sketcher.Constraint("Vertical", 68, 2, 71, 2))
sketch1.addConstraint(Sketcher.Constraint("Vertical", 70, 2, 73, 2))
sketch1.addConstraint(Sketcher.Constraint("Equal", 0, 4))
sketch1.addConstraint(Sketcher.Constraint("Equal", 2, 6))
sketch1.addConstraint(Sketcher.Constraint("Equal", 4, 8))
sketch1.addConstraint(Sketcher.Constraint("Equal", 6, 10))
sketch1.addConstraint(Sketcher.Constraint("Equal", 8, 12))
sketch1.addConstraint(Sketcher.Constraint("Equal", 10, 14))
sketch1.addConstraint(Sketcher.Constraint("Equal", 12, 16))
sketch1.addConstraint(Sketcher.Constraint("Equal", 14, 18))
sketch1.addConstraint(Sketcher.Constraint("Equal", 16, 20))
sketch1.addConstraint(Sketcher.Constraint("Equal", 18, 78))
sketch1.addConstraint(Sketcher.Constraint("Equal", 78, 28))
sketch1.addConstraint(Sketcher.Constraint("Equal", 28, 32))
sketch1.addConstraint(Sketcher.Constraint("Equal", 30, 34))
sketch1.addConstraint(Sketcher.Constraint("Equal", 32, 36))
sketch1.addConstraint(Sketcher.Constraint("Equal", 34, 38))
sketch1.addConstraint(Sketcher.Constraint("Equal", 36, 40))
sketch1.addConstraint(Sketcher.Constraint("Equal", 38, 42))
sketch1.addConstraint(Sketcher.Constraint("Equal", 40, 44))
sketch1.addConstraint(Sketcher.Constraint("Equal", 42, 46))
sketch1.addConstraint(Sketcher.Constraint("Equal", 44, 48))
sketch1.addConstraint(Sketcher.Constraint("Equal", 50, 54))
sketch1.addConstraint(Sketcher.Constraint("Equal", 56, 60))
sketch1.addConstraint(Sketcher.Constraint("Equal", 58, 62))
sketch1.addConstraint(Sketcher.Constraint("Equal", 60, 64))
sketch1.addConstraint(Sketcher.Constraint("Equal", 48, 68))
sketch1.addConstraint(Sketcher.Constraint("Equal", 62, 70))
sketch1.addConstraint(Sketcher.Constraint("Equal", 68, 72))
sketch1.addConstraint(Sketcher.Constraint("Equal", 1, 3))
sketch1.addConstraint(Sketcher.Constraint("Equal", 27, 29))
sketch1.addConstraint(Sketcher.Constraint("Equal", 55, 57))
sketch1.addConstraint(Sketcher.Constraint("Radius", 51, Q("3.000001 mm")))
sketch1.addConstraint(Sketcher.Constraint("DistanceX", 24, 2, 24, 1, Q("6 mm")))
sketch1.addConstraint(Sketcher.Constraint("DistanceY", 56, 1, 56, 2, Q("2 mm")))
sketch1.addConstraint(Sketcher.Constraint("DistanceY", 58, 1, 58, 2, Q("1 mm")))
sketch1.addConstraint(Sketcher.Constraint("DistanceX", 2, 2, 2, 1, Q("2.5 mm")))
sketch1.addConstraint(Sketcher.Constraint("DistanceX", 22, 2, 22, 1, Q("39.5 mm")))
sketch1.addConstraint(Sketcher.Constraint("DistanceY", 26, 2, 26, 1, Q("7.3 mm")))
sketch1.addConstraint(Sketcher.Constraint("DistanceY", 30, 2, 30, 1, Q("0.8 mm")))
sketch1.addConstraint(Sketcher.Constraint("DistanceY", 66, 1, 66, 2, Q("8.5 mm")))
sketch1.addConstraint(Sketcher.Constraint("DistanceX", -1, 1, 53, 3, Q("41.999999 mm")))
sketch1.addConstraint(Sketcher.Constraint("DistanceX", -1, 1, 5, 2, Q("24 mm")))
sketch1.addConstraint(Sketcher.Constraint("DistanceX", -1, 1, 8, 2, Q("20 mm")))
sketch1.addConstraint(Sketcher.Constraint("DistanceY", -1, 1, 27, 2, Q("32 mm")))
sketch1.addConstraint(Sketcher.Constraint("DistanceY", -1, 1, 29, 2, Q("29 mm")))
sketch1.addConstraint(Sketcher.Constraint("DistanceY", -1, 1, 0, 2, Q("43.8 mm")))
sketch1.addConstraint(Sketcher.Constraint("DistanceY", -1, 1, 1, 2, Q("42.3 mm")))
sketch1.addConstraint(Sketcher.Constraint("DistanceX", 27, 2, -1, 1, Q("42.5 mm")))
pad1 = doc.addObject("PartDesign::Pad", "Pad")
body.addObject(pad1)
pad1.Profile = sketch1
pad1.Length = 222.2
pad1.Midplane = True

sketch2 = doc.addObject("Sketcher::SketchObject", "Sketch001")
body.addObject(sketch2)
sketch2.AttachmentSupport = (doc.XZ_Plane, [""])
sketch2.MapMode = "FlatFace"
sketch2.AttachmentOffset = App.Placement(App.Vector(0, 0, 111.1), App.Rotation())
sketch2.addGeometry(Part.Circle(App.Vector(-38.5, 41.8, 0), App.Vector(0, 0, 1), 1.5), False)
sketch2.addGeometry(Part.Circle(App.Vector(38.5, 41.8, 0), App.Vector(0, 0, 1), 1.5), False)
sketch2.addGeometry(Part.Circle(App.Vector(41.5, 2.8, 0), App.Vector(0, 0, 1), 1.5), False)
sketch2.addGeometry(Part.Circle(App.Vector(-41.5, 2.8, 0), App.Vector(0, 0, 1), 1.5), False)
sketch2.addConstraint(Sketcher.Constraint("Equal", 0, 1))
sketch2.addConstraint(Sketcher.Constraint("Equal", 1, 2))
sketch2.addConstraint(Sketcher.Constraint("Equal", 2, 3))
sketch2.addConstraint(Sketcher.Constraint("Symmetric", 0, 3, 1, 3, -2))
sketch2.addConstraint(Sketcher.Constraint("Symmetric", 2, 3, 3, 3, -2))
sketch2.addConstraint(Sketcher.Constraint("Diameter", 0, Q("3 mm")))
sketch2.addConstraint(Sketcher.Constraint("DistanceX", 0, 3, 1, 3, Q("77 mm")))
sketch2.addConstraint(Sketcher.Constraint("DistanceX", 1, 3, 2, 3, Q("3 mm")))
sketch2.addConstraint(Sketcher.Constraint("DistanceY", 2, 3, 1, 3, Q("39 mm")))
sketch2.addConstraint(Sketcher.Constraint("DistanceY", -1, 1, 0, 3, Q("41.8 mm")))
pocket1 = doc.addObject("PartDesign::Pocket", "Pocket")
body.addObject(pocket1)
pocket1.Profile = sketch2
pocket1.Type = "ThroughAll"

doc.recompute()
